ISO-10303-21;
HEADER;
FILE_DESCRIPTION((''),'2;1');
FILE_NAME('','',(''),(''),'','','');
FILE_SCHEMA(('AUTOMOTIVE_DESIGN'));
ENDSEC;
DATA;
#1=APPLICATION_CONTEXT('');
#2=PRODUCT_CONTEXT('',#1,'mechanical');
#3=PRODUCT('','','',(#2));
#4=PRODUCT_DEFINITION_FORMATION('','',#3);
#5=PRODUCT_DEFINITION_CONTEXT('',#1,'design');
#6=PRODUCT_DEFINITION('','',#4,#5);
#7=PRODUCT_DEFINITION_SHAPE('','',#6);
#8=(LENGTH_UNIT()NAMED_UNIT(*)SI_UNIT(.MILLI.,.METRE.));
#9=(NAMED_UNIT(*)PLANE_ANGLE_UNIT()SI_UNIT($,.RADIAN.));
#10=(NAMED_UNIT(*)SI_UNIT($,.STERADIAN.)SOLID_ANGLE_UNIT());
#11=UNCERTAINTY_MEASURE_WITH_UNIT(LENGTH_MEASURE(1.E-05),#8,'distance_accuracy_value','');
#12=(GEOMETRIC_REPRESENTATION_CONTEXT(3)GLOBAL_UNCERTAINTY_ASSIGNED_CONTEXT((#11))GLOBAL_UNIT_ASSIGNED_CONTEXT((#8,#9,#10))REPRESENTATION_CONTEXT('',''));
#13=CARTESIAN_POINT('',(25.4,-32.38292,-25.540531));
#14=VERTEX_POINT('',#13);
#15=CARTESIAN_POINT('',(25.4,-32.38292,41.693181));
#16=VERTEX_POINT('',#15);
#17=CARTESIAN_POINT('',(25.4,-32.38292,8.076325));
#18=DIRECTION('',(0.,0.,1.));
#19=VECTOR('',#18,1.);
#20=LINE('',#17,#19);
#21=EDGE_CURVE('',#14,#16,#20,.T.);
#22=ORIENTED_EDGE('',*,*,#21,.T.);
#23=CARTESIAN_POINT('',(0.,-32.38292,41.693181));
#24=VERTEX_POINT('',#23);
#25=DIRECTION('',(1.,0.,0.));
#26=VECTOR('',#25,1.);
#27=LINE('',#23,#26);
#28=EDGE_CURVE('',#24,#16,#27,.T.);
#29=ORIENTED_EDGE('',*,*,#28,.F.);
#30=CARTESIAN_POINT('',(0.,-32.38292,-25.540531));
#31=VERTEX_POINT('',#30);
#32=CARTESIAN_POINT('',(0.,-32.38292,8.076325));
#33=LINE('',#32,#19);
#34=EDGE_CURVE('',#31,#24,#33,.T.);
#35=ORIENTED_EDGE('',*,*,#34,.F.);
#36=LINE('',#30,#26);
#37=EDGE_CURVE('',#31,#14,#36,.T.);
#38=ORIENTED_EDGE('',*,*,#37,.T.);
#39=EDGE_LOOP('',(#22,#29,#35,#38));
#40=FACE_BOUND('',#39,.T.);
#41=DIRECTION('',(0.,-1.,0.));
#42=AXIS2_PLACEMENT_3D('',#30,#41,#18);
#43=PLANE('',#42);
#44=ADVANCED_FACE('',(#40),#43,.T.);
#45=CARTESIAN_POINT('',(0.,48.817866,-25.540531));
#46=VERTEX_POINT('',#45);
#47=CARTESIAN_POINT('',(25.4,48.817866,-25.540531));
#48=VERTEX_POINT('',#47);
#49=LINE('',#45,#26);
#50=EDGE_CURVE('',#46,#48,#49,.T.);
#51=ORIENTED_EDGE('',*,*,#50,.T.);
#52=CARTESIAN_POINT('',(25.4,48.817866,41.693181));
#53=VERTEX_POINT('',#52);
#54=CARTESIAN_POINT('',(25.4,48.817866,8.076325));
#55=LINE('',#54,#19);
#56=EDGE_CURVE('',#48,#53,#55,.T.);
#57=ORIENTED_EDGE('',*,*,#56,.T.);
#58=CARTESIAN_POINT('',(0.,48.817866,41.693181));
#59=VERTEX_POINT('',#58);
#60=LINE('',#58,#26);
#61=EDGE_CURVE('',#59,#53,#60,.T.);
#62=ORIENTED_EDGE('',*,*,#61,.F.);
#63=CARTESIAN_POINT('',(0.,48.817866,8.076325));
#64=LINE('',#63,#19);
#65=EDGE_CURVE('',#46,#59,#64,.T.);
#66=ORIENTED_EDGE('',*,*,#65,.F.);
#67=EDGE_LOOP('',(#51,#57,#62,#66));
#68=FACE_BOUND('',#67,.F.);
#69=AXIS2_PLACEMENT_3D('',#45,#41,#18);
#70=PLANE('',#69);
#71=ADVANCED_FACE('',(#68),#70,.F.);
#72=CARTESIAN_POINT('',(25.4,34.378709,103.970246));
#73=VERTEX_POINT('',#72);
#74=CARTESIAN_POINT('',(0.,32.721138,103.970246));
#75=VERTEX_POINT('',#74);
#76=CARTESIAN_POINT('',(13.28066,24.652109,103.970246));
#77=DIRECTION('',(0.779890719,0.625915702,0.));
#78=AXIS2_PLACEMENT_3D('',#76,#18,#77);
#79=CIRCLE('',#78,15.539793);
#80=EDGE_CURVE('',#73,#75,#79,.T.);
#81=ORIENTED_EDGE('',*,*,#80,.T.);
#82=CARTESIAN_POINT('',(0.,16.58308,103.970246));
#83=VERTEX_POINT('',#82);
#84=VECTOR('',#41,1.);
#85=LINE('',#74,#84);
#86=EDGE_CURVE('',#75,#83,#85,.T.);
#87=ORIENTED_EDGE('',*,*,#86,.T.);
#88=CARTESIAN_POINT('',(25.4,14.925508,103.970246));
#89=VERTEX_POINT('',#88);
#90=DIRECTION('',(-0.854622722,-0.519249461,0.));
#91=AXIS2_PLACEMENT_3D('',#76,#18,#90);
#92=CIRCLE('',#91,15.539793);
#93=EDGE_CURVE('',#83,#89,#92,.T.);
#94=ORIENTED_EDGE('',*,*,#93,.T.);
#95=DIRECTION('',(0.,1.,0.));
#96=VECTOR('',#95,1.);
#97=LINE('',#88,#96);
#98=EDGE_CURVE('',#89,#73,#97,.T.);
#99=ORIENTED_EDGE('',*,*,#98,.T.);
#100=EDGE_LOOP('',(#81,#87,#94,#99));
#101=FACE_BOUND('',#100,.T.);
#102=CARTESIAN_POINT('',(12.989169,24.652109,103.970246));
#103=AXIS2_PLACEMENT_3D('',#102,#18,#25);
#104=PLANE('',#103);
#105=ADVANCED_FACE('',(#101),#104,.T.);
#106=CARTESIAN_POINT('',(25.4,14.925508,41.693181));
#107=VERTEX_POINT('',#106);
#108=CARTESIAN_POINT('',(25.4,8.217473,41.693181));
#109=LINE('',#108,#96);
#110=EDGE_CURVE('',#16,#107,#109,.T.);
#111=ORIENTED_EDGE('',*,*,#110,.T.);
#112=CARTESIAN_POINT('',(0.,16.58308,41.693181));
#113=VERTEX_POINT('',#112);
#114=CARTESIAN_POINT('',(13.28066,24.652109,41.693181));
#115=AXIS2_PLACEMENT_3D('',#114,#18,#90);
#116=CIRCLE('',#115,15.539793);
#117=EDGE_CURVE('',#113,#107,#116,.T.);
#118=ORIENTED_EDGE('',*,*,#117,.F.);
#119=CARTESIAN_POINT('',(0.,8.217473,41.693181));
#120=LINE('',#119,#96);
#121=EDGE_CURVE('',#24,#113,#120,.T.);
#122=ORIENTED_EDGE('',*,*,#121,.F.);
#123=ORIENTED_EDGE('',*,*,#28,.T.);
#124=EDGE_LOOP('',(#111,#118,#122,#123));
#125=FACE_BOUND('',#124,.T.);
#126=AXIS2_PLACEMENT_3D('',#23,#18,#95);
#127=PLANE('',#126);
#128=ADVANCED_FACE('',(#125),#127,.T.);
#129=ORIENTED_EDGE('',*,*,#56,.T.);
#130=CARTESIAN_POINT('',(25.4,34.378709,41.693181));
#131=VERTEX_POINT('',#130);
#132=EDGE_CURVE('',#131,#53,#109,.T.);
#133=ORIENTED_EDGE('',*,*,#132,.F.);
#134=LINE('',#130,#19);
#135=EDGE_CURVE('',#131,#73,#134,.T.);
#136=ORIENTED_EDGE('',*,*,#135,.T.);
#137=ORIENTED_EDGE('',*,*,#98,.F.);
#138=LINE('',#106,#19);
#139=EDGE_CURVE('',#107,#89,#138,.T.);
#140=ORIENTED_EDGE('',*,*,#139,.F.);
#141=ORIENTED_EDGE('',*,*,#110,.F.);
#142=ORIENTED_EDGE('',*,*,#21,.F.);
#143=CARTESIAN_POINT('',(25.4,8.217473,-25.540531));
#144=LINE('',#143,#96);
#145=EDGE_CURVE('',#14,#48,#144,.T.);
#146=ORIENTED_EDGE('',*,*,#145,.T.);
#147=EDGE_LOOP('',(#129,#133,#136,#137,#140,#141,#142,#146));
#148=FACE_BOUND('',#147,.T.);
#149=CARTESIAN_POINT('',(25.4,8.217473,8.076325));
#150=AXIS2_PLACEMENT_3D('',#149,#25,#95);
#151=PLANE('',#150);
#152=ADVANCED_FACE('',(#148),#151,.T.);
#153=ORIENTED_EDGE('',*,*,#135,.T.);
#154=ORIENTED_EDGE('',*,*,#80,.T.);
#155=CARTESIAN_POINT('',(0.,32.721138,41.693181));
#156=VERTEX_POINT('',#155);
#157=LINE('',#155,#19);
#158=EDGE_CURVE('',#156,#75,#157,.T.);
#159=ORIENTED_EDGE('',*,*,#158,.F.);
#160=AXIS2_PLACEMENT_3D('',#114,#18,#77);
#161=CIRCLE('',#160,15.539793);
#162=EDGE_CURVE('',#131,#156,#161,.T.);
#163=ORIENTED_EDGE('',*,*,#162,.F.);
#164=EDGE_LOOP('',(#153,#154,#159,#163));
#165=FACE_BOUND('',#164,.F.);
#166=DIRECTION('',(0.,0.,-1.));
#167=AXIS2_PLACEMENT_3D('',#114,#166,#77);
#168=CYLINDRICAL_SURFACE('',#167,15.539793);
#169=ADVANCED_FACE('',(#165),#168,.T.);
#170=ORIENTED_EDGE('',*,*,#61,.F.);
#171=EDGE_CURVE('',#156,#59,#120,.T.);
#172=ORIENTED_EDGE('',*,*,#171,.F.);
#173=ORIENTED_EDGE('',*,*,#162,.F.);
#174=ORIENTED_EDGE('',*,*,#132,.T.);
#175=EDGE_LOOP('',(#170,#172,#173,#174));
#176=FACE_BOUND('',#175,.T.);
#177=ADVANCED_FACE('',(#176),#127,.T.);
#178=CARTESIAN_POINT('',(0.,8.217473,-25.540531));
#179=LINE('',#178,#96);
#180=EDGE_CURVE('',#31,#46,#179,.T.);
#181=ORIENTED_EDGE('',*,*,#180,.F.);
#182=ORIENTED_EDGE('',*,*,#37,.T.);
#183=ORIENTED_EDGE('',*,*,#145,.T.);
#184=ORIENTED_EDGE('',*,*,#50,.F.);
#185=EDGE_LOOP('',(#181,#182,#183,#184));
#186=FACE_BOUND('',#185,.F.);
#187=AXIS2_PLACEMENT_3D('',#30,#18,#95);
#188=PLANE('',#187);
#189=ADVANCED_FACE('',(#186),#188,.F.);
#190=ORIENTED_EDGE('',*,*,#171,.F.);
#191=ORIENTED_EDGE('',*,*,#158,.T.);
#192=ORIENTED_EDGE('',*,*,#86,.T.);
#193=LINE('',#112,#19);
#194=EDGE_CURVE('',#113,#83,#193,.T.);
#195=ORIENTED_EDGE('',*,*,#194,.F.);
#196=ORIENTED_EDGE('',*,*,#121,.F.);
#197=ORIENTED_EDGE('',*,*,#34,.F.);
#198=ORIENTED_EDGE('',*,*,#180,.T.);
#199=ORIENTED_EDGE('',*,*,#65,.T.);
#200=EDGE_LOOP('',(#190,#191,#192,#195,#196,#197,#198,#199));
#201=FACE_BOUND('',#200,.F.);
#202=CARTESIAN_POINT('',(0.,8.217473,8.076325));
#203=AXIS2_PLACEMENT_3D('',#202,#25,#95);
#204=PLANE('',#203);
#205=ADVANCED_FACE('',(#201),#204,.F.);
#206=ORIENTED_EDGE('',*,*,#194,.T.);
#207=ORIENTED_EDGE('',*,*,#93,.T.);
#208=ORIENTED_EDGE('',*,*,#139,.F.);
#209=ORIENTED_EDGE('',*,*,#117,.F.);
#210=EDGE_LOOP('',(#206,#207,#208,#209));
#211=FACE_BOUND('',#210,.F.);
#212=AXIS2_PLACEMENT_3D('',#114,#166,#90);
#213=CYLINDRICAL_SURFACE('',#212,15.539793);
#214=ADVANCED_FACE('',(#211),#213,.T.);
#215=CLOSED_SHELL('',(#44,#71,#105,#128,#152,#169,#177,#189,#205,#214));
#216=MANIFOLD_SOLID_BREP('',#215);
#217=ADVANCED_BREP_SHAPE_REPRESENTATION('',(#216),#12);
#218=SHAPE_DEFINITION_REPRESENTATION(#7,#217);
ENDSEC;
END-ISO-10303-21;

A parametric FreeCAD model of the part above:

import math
import FreeCAD as App
import Part
import Sketcher

V = App.Vector
Q = App.Units.Quantity

doc = App.newDocument("Part")
body = doc.addObject("PartDesign::Body", "Body")

# Sketch on YZ plane
sketch1 = doc.addObject("Sketcher::SketchObject", "Sketch")
body.addObject(sketch1)
sketch1.AttachmentSupport = (doc.YZ_Plane, [""])
sketch1.MapMode = "FlatFace"
sketch1.addGeometry([
    Part.LineSegment(V(-32, 42, 0), V(-32, -26, 0)),
    Part.LineSegment(V(-32, -26, 0), V(49, -26, 0)),
    Part.LineSegment(V(49, -26, 0), V(49, 42, 0)),
    Part.LineSegment(V(49, 42, 0), V(-32, 42, 0)),
], False)
sketch1.addConstraint([
    Sketcher.Constraint("Coincident", 0, 2, 1, 1),
    Sketcher.Constraint("Coincident", 1, 2, 2, 1),
    Sketcher.Constraint("Coincident", 2, 2, 3, 1),
    Sketcher.Constraint("Coincident", 3, 2, 0, 1),
    Sketcher.Constraint("Vertical", 0),
    Sketcher.Constraint("Horizontal", 1),
    Sketcher.Constraint("Vertical", 2),
    Sketcher.Constraint("Horizontal", 3),
    Sketcher.Constraint("DistanceY", 0, 2, 0, 1, Q("67.233711 mm")),
    Sketcher.Constraint("DistanceX", 1, 1, 1, 2, Q("81.200786 mm")),
    Sketcher.Constraint("DistanceX", 0, 2, -1, 1, Q("32.38292 mm")),
    Sketcher.Constraint("DistanceY", 0, 2, -1, 1, Q("25.540531 mm")),
])
pad1 = doc.addObject("PartDesign::Pad", "Pad")
body.addObject(pad1)
pad1.Profile = sketch1
pad1.Length = Q("1 in")

# Sketch on XY plane
sketch2 = doc.addObject("Sketcher::SketchObject", "Sketch001")
body.addObject(sketch2)
sketch2.AttachmentSupport = (doc.XY_Plane, [""])
sketch2.MapMode = "FlatFace"
sketch2.AttachmentOffset = App.Placement(V(0, 0, 41.693181), App.Rotation())
sketch2.addGeometry([
    Part.LineSegment(V(25, 15, 0), V(25, 34, 0)),
    Part.ArcOfCircle(Part.Circle(V(13, 25, 0), V(0, 0, 1), 16), math.radians(39), math.radians(149)),
    Part.LineSegment(V(0, 33, 0), V(0, 17, 0)),
    Part.ArcOfCircle(Part.Circle(V(13, 25, 0), V(0, 0, 1), 16), math.radians(-149), math.radians(-39)),
], False)
sketch2.addConstraint([
    Sketcher.Constraint("Coincident", 0, 2, 1, 1),
    Sketcher.Constraint("Coincident", 1, 2, 2, 1),
    Sketcher.Constraint("Coincident", 2, 2, 3, 1),
    Sketcher.Constraint("Coincident", 3, 2, 0, 1),
    Sketcher.Constraint("Vertical", 0),
    Sketcher.Constraint("Vertical", 2),
    Sketcher.Constraint("Coincident", 3, 3, 1, 3),
    Sketcher.Constraint("Equal", 1, 3),
    Sketcher.Constraint("PointOnObject", 1, 2, -2),
    Sketcher.Constraint("DistanceX", -1, 1, 0, 2, Q("1 in")),
    Sketcher.Constraint("DistanceY", 0, 1, 0, 2, Q("19.4532 mm")),
    Sketcher.Constraint("Radius", 1, Q("15.539793 mm")),
    Sketcher.Constraint("DistanceY", -1, 1, 1, 3, Q("24.652109 mm")),
])
pad2 = doc.addObject("PartDesign::Pad", "Pad001")
body.addObject(pad2)
pad2.Profile = sketch2
pad2.Length = 62.277066

doc.recompute()
